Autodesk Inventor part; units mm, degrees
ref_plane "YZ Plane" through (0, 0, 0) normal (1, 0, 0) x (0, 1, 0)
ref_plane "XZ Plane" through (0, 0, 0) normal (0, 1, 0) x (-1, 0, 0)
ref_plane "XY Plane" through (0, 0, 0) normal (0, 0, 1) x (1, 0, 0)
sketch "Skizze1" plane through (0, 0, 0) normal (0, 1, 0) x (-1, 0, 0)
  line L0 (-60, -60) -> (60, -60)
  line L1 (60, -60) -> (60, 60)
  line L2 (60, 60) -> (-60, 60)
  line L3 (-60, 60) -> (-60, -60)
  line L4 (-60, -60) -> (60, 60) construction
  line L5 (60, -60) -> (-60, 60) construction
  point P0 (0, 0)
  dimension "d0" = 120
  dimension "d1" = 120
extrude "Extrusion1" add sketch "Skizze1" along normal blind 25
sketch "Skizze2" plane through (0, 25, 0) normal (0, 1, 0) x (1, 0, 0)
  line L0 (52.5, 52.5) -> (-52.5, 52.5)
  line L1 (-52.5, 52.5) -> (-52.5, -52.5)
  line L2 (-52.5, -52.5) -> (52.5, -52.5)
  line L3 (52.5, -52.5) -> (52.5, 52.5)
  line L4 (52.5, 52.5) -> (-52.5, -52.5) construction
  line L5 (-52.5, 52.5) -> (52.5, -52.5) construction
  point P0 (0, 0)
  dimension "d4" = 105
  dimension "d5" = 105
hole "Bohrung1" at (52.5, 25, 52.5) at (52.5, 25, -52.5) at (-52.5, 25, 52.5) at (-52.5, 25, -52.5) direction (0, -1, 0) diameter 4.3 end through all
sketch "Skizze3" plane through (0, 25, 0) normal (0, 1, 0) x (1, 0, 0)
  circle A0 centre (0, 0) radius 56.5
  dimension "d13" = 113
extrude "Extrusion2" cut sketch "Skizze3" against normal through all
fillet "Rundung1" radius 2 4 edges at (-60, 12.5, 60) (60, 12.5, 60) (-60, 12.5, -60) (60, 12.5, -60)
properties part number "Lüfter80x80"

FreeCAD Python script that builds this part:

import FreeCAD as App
import Part
import Sketcher
Q = App.Units.Quantity


def edges_at(feature, points):
    """Names of the edges that pass closest to the given points."""
    edges = feature.Shape.Edges
    near = lambda p: min(range(len(edges)), key=lambda i: edges[i].distToShape(Part.Vertex(*p))[0])
    return sorted({f"Edge{near(p) + 1}" for p in points})


def add_polygon(sketch, points):
    """Adds a closed chain of lines whose ends are joined by coincident constraints."""
    first, n = sketch.GeometryCount, len(points)
    for a, b in zip(points, points[1:] + points[:1]):
        sketch.addGeometry(Part.LineSegment(App.Vector(*a, 0), App.Vector(*b, 0)), False)
    for i in range(n):
        sketch.addConstraint(Sketcher.Constraint("Coincident", first + i, 2, first + (i + 1) % n, 1))

doc = App.newDocument("Part")
body = doc.addObject("PartDesign::Body", "Body")

sketch1 = body.newObject("Sketcher::SketchObject", "Sketch")
sketch1.AttachmentSupport = (doc.getObject("XZ_Plane"), [""])
sketch1.MapMode = "FlatFace"
add_polygon(sketch1, [(60, 60), (60, -60), (-60, -60), (-60, 60)])
sketch1.addConstraint(Sketcher.Constraint("Vertical", 0))
sketch1.addConstraint(Sketcher.Constraint("Horizontal", 1))
sketch1.addConstraint(Sketcher.Constraint("Vertical", 2))
sketch1.addConstraint(Sketcher.Constraint("Horizontal", 3))
sketch1.addConstraint(Sketcher.Constraint("Symmetric", 0, 2, 2, 2, -1, 1))
sketch1.addConstraint(Sketcher.Constraint("Equal", 3, 0))
sketch1.addConstraint(Sketcher.Constraint("DistanceX", 1, 2, 1, 1, Q("120 mm")))
pad1 = body.newObject("PartDesign::Pad", "Pad")
pad1.Profile = sketch1
pad1.Length = 25
pad1.Reversed = True

sketch2 = body.newObject("Sketcher::SketchObject", "Sketch001")
sketch2.AttachmentSupport = (doc.getObject("XZ_Plane"), [""])
sketch2.MapMode = "FlatFace"
sketch2.AttachmentOffset = App.Placement(App.Vector(0, 0, -25), App.Rotation())
sketch2.addGeometry(Part.Circle(App.Vector(52.5, 52.5, 0), App.Vector(0, 0, 1), 2.1), False)
sketch2.addGeometry(Part.Circle(App.Vector(52.5, -52.5, 0), App.Vector(0, 0, 1), 2.1), False)
sketch2.addGeometry(Part.Circle(App.Vector(-52.5, 52.5, 0), App.Vector(0, 0, 1), 2.1), False)
sketch2.addGeometry(Part.Circle(App.Vector(-52.5, -52.5, 0), App.Vector(0, 0, 1), 2.1), False)
sketch2.addConstraint(Sketcher.Constraint("Equal", 0, 1))
sketch2.addConstraint(Sketcher.Constraint("Equal", 1, 2))
sketch2.addConstraint(Sketcher.Constraint("Equal", 2, 3))
sketch2.addConstraint(Sketcher.Constraint("Symmetric", 1, 3, 2, 3, -1, 1))
sketch2.addConstraint(Sketcher.Constraint("Symmetric", 0, 3, 3, 3, -1, 1))
sketch2.addConstraint(Sketcher.Constraint("Symmetric", 0, 3, 2, 3, -2))
sketch2.addConstraint(Sketcher.Constraint("Diameter", 0, Q("4.3 mm")))
sketch2.addConstraint(Sketcher.Constraint("DistanceY", 1, 3, 0, 3, Q("105 mm")))
sketch2.addConstraint(Sketcher.Constraint("DistanceX", 2, 3, 0, 3, Q("105 mm")))
doc.recompute()
hole = body.newObject("PartDesign::Hole", "Hole")
hole.Profile = sketch2
hole.ThreadType = "None"
hole.Diameter = 4.3
hole.DepthType = "ThroughAll"
hole.Reversed = True

sketch3 = body.newObject("Sketcher::SketchObject", "Sketch002")
sketch3.AttachmentSupport = (doc.getObject("XZ_Plane"), [""])
sketch3.MapMode = "FlatFace"
sketch3.AttachmentOffset = App.Placement(App.Vector(0, 0, -25), App.Rotation())
sketch3.addGeometry(Part.Circle(App.Vector(0, 0, 0), App.Vector(0, 0, 1), 56), False)
sketch3.addConstraint(Sketcher.Constraint("Coincident", 0, 3, -1, 1))
sketch3.addConstraint(Sketcher.Constraint("Diameter", 0, Q("113 mm")))
pocket1 = body.newObject("PartDesign::Pocket", "Pocket")
pocket1.Profile = sketch3
pocket1.Type = "ThroughAll"
pocket1.Reversed = True
doc.recompute()

fillet = body.newObject("PartDesign::Fillet", "Fillet")
fillet.Base = (pocket1, edges_at(pocket1, [
    (-60, 12.5, 60),
    (60, 12.5, 60),
    (-60, 12.5, -60),
    (60, 12.5, -60),
]))
fillet.Radius = 2

doc.recompute()
